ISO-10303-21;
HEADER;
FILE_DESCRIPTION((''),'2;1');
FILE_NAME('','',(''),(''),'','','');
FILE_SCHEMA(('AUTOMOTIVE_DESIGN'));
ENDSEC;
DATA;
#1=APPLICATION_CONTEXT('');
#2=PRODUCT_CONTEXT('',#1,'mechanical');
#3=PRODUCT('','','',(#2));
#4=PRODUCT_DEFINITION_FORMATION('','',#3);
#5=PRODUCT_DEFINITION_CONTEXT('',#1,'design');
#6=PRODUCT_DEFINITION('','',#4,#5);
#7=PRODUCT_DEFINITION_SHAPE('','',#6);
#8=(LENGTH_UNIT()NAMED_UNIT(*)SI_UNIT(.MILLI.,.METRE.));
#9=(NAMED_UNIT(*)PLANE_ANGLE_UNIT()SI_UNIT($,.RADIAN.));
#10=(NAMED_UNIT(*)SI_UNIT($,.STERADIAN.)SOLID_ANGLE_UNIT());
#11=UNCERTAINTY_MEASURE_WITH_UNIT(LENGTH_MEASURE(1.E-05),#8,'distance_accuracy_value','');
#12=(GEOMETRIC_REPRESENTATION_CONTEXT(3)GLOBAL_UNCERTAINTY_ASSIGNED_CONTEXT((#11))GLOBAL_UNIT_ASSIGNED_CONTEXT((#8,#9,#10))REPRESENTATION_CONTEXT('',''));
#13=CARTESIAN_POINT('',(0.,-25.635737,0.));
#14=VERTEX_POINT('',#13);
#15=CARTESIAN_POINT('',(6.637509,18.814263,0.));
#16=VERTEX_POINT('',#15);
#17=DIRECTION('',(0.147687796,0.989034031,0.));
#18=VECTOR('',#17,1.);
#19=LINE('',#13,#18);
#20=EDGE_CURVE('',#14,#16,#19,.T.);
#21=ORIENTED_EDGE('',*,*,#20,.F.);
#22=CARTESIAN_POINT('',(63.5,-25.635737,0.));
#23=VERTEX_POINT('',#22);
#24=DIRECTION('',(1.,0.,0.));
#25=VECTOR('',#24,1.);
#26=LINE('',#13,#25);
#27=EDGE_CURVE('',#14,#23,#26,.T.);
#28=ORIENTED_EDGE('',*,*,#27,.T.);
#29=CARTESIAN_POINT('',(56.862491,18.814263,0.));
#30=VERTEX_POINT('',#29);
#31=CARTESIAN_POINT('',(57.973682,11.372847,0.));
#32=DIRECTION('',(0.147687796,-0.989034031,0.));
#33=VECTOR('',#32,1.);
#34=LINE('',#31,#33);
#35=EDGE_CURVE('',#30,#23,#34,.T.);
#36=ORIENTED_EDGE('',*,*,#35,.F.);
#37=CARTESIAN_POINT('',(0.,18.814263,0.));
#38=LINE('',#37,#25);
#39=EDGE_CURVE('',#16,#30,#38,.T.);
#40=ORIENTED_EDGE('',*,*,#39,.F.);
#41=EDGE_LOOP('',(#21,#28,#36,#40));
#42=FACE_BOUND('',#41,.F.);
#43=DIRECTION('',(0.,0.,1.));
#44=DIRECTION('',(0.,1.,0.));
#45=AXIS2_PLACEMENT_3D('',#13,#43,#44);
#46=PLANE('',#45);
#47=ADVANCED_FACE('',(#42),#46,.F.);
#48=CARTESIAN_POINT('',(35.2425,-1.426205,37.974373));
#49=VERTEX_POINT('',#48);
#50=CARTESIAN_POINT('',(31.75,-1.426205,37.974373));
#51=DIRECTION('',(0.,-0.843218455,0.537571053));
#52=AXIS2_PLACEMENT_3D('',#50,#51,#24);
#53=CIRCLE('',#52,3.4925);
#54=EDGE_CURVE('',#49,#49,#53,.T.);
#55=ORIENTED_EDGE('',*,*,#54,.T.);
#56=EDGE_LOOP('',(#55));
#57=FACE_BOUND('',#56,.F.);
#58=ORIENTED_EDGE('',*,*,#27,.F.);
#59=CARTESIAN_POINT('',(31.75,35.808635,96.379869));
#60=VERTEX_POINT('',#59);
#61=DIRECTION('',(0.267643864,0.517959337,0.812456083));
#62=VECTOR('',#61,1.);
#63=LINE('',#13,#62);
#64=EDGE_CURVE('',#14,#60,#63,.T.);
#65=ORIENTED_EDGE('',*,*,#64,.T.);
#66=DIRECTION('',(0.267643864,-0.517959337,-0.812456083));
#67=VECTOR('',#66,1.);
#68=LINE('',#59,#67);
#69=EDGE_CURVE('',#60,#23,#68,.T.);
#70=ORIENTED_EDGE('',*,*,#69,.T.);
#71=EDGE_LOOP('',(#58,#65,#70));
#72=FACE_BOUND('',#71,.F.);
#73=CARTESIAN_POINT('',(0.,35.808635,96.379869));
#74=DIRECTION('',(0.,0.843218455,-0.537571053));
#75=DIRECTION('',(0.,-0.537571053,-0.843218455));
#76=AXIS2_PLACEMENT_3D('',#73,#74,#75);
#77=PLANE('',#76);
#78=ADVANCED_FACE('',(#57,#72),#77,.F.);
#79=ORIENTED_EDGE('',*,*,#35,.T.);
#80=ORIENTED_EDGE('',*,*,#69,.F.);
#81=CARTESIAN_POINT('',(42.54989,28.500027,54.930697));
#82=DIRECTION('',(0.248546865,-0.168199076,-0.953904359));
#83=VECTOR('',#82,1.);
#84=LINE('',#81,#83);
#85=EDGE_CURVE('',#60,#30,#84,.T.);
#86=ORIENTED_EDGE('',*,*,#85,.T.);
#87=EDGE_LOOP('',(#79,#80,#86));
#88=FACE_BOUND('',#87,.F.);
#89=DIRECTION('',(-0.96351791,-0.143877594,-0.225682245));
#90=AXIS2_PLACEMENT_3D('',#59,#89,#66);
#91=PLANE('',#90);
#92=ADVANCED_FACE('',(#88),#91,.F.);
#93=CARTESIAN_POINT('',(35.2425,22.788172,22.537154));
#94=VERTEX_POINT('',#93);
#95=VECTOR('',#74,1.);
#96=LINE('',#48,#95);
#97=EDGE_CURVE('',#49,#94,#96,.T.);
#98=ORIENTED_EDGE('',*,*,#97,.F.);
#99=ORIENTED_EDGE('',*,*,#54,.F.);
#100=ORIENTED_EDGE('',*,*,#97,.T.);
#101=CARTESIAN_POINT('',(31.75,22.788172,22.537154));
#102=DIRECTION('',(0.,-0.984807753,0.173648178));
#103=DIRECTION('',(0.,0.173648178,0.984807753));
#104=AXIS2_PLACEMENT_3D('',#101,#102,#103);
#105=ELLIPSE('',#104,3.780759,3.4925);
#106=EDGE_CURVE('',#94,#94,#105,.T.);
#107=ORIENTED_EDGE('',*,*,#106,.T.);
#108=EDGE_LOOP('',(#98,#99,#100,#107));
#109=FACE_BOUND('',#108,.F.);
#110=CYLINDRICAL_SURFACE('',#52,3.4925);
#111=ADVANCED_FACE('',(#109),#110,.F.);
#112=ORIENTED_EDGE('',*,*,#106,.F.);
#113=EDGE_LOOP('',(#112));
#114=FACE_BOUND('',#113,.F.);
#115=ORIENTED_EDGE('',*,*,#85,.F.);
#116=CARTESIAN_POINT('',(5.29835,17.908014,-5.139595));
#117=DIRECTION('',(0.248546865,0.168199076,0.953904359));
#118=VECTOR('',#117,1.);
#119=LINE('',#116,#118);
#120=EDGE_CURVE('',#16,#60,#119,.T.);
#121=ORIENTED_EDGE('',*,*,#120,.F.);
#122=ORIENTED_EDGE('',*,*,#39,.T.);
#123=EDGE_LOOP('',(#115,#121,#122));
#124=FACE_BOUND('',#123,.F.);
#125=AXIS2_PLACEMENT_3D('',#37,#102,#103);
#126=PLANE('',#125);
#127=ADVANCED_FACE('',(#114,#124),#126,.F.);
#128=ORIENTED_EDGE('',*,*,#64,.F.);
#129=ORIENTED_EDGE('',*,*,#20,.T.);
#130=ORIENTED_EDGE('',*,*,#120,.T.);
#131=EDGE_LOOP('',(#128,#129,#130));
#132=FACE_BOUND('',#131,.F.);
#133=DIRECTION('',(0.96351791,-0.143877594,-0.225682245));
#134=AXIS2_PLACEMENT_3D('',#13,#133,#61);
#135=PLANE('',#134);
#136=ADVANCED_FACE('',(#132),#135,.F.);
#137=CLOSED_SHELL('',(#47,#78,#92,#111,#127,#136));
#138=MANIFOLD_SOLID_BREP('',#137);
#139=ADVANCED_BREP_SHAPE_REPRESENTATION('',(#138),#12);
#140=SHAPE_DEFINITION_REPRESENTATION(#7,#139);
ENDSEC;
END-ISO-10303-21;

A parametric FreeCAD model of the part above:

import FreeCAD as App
import Part
import Sketcher

V = App.Vector
Q = App.Units.Quantity

doc = App.newDocument("Part")
body = doc.addObject("PartDesign::Body", "Body")

sketch1 = body.newObject("Sketcher::SketchObject", "Sketch")
sketch1.AttachmentSupport = (doc.getObject("YZ_Plane"), [""])
sketch1.MapMode = "FlatFace"
sketch1.addGeometry([
    Part.LineSegment(V(36, 96, 0), V(-26, 0, 0)),
    Part.LineSegment(V(-26, 0, 0), V(19, 0, 0)),
    Part.LineSegment(V(19, 0, 0), V(36, 96, 0)),
], False)
sketch1.addConstraint([
    Sketcher.Constraint("Coincident", 0, 2, 1, 1),
    Sketcher.Constraint("Coincident", 1, 2, 2, 1),
    Sketcher.Constraint("Coincident", 2, 2, 0, 1),
    Sketcher.Constraint("Horizontal", 1),
    Sketcher.Constraint("PointOnObject", 0, 2, -1),
    Sketcher.Constraint("Angle", 2, Q("80 deg")),
    Sketcher.Constraint("Distance", 0, Q("4.5 in")),
    Sketcher.Constraint("DistanceX", 1, 1, 1, 2, Q("1.75 in")),
    Sketcher.Constraint("DistanceX", 0, 2, -1, 1, 25.635737),
])
pad1 = body.newObject("PartDesign::Pad", "Pad")
pad1.Profile = sketch1
pad1.Length = Q("2.5 in")

sketch2 = body.newObject("Sketcher::SketchObject", "Sketch001")
sketch2.Placement = App.Placement(V(0, -18.227454, 11.620419), App.Rotation(V(1, 0, 0), V(0, 0.537571053, 0.843218455), V(0, -0.843218455, 0.537571053), "ZXY"))
sketch2.addGeometry([
    Part.LineSegment(V(64, 101, 0), V(32, 101, 0)),
    Part.LineSegment(V(32, 101, 0), V(64, -14, 0)),
    Part.LineSegment(V(64, -14, 0), V(64, 101, 0)),
    Part.LineSegment(V(0, 101, 0), V(0, -14, 0)),
    Part.LineSegment(V(0, -14, 0), V(32, 101, 0)),
    Part.LineSegment(V(32, 101, 0), V(0, 101, 0)),
], False)
sketch2.addConstraint([
    Sketcher.Constraint("Coincident", 0, 2, 1, 1),
    Sketcher.Constraint("Coincident", 1, 2, 2, 1),
    Sketcher.Constraint("Coincident", 2, 2, 0, 1),
    Sketcher.Constraint("Coincident", 3, 2, 4, 1),
    Sketcher.Constraint("Coincident", 4, 2, 5, 1),
    Sketcher.Constraint("Coincident", 5, 2, 3, 1),
    Sketcher.Constraint("Horizontal", 0),
    Sketcher.Constraint("Vertical", 2),
    Sketcher.Constraint("Vertical", 3),
    Sketcher.Constraint("Horizontal", 5),
    Sketcher.Constraint("Coincident", 4, 2, 0, 2),
    Sketcher.Constraint("PointOnObject", 3, 2, -2),
    Sketcher.Constraint("Horizontal", 1, 2, 3, 2),
    Sketcher.Constraint("Equal", 0, 5),
    Sketcher.Constraint("DistanceY", 2, 1, 2, 2, Q("4.5 in")),
    Sketcher.Constraint("DistanceX", 0, 2, 0, 1, Q("1.25 in")),
    Sketcher.Constraint("DistanceY", -1, 1, 0, 2, 100.51897),
])
pocket1 = body.newObject("PartDesign::Pocket", "Pocket")
pocket1.Profile = sketch2
pocket1.Type = "ThroughAll"

sketch3 = body.newObject("Sketcher::SketchObject", "Sketch002")
sketch3.Placement = App.Placement(V(0, -18.227454, 11.620419), App.Rotation(V(1, 0, 0), V(0, 0.537571053, 0.843218455), V(0, -0.843218455, 0.537571053), "ZXY"))
sketch3.addGeometry(Part.Circle(V(31.8, 31.3, 0), V(0, 0, 1), 3.5), False)
sketch3.addConstraint([
    Sketcher.Constraint("Diameter", 0, Q("0.275 in")),
    Sketcher.Constraint("DistanceX", -1, 1, 0, 3, Q("1.25 in")),
    Sketcher.Constraint("DistanceY", -1, 1, 0, 3, 31.254006),
])
pocket2 = body.newObject("PartDesign::Pocket", "Pocket001")
pocket2.Profile = sketch3
pocket2.Type = "ThroughAll"

doc.recompute()
